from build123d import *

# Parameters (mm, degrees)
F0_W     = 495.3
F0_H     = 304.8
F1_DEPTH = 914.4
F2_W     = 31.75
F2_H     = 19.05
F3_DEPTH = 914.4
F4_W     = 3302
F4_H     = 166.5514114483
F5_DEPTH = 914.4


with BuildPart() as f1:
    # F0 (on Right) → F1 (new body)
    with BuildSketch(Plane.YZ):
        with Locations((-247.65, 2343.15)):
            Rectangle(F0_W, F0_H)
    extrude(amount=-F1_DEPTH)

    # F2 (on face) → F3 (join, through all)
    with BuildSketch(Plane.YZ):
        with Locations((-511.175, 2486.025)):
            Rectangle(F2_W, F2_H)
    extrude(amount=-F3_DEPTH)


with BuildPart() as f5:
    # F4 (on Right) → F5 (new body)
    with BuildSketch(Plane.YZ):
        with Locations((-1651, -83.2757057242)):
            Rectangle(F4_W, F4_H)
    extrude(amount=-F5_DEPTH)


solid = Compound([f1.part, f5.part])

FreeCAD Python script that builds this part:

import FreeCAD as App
import Part
import Sketcher
from FreeCAD import Vector
Q = App.Units.Quantity

doc = App.newDocument("Part")
body = doc.addObject("PartDesign::Body", "Body")

# Sketch on YZ plane
sketch1 = doc.addObject("Sketcher::SketchObject", "Sketch")
body.addObject(sketch1)
sketch1.AttachmentSupport = (doc.YZ_Plane, [""])
sketch1.MapMode = "FlatFace"
sketch1.addGeometry(Part.LineSegment(Vector(-495, 2496, 0), Vector(-495, 2191, 0)), False)
sketch1.addGeometry(Part.LineSegment(Vector(-495, 2191, 0), Vector(0, 2191, 0)), False)
sketch1.addGeometry(Part.LineSegment(Vector(0, 2191, 0), Vector(0, 2496, 0)), False)
sketch1.addGeometry(Part.LineSegment(Vector(0, 2496, 0), Vector(-495, 2496, 0)), False)
sketch1.addConstraint(Sketcher.Constraint("Coincident", 0, 2, 1, 1))
sketch1.addConstraint(Sketcher.Constraint("Coincident", 1, 2, 2, 1))
sketch1.addConstraint(Sketcher.Constraint("Coincident", 2, 2, 3, 1))
sketch1.addConstraint(Sketcher.Constraint("Coincident", 3, 2, 0, 1))
sketch1.addConstraint(Sketcher.Constraint("Vertical", 0))
sketch1.addConstraint(Sketcher.Constraint("Horizontal", 1))
sketch1.addConstraint(Sketcher.Constraint("Vertical", 2))
sketch1.addConstraint(Sketcher.Constraint("Horizontal", 3))
sketch1.addConstraint(Sketcher.Constraint("PointOnObject", 1, 2, -2))
sketch1.addConstraint(Sketcher.Constraint("DistanceY", 0, 2, 0, 1, Q("12 in")))
sketch1.addConstraint(Sketcher.Constraint("DistanceX", 1, 1, 1, 2, Q("19.5 in")))
sketch1.addConstraint(Sketcher.Constraint("DistanceY", -1, 1, 0, 2, Q("86.25 in")))
pad1 = doc.addObject("PartDesign::Pad", "Pad")
body.addObject(pad1)
pad1.Profile = sketch1
pad1.Length = Q("36 in")
pad1.Reversed = True

# Sketch on YZ plane
sketch2 = doc.addObject("Sketcher::SketchObject", "Sketch001")
body.addObject(sketch2)
sketch2.AttachmentSupport = (doc.YZ_Plane, [""])
sketch2.MapMode = "FlatFace"
sketch2.addGeometry(Part.LineSegment(Vector(-527, 2496, 0), Vector(-527, 2476, 0)), False)
sketch2.addGeometry(Part.LineSegment(Vector(-527, 2476, 0), Vector(-495, 2476, 0)), False)
sketch2.addGeometry(Part.LineSegment(Vector(-495, 2476, 0), Vector(-495, 2496, 0)), False)
sketch2.addGeometry(Part.LineSegment(Vector(-495, 2496, 0), Vector(-527, 2496, 0)), False)
sketch2.addConstraint(Sketcher.Constraint("Coincident", 0, 2, 1, 1))
sketch2.addConstraint(Sketcher.Constraint("Coincident", 1, 2, 2, 1))
sketch2.addConstraint(Sketcher.Constraint("Coincident", 2, 2, 3, 1))
sketch2.addConstraint(Sketcher.Constraint("Coincident", 3, 2, 0, 1))
sketch2.addConstraint(Sketcher.Constraint("Vertical", 0))
sketch2.addConstraint(Sketcher.Constraint("Horizontal", 1))
sketch2.addConstraint(Sketcher.Constraint("Vertical", 2))
sketch2.addConstraint(Sketcher.Constraint("Horizontal", 3))
sketch2.addConstraint(Sketcher.Constraint("DistanceX", 1, 1, 1, 2, Q("1.25 in")))
sketch2.addConstraint(Sketcher.Constraint("DistanceY", 0, 2, 0, 1, Q("0.75 in")))
sketch2.addConstraint(Sketcher.Constraint("DistanceY", -1, 1, 0, 2, Q("97.5 in")))
sketch2.addConstraint(Sketcher.Constraint("DistanceX", 1, 2, -1, 1, Q("19.5 in")))
pad2 = doc.addObject("PartDesign::Pad", "Pad001")
body.addObject(pad2)
pad2.Profile = sketch2
pad2.Length = Q("36 in")
pad2.Reversed = True
body2 = doc.addObject("PartDesign::Body", "Body001")

# Sketch on YZ plane
sketch3 = doc.addObject("Sketcher::SketchObject", "Sketch002")
body2.addObject(sketch3)
sketch3.AttachmentSupport = (doc.getObject("YZ_Plane001"), [""])
sketch3.MapMode = "FlatFace"
sketch3.addGeometry(Part.LineSegment(Vector(-3302, 0, 0), Vector(-3302, -167, 0)), False)
sketch3.addGeometry(Part.LineSegment(Vector(-3302, -167, 0), Vector(0, -167, 0)), False)
sketch3.addGeometry(Part.LineSegment(Vector(0, -167, 0), Vector(0, 0, 0)), False)
sketch3.addGeometry(Part.LineSegment(Vector(0, 0, 0), Vector(-3302, 0, 0)), False)
sketch3.addConstraint(Sketcher.Constraint("Coincident", 0, 2, 1, 1))
sketch3.addConstraint(Sketcher.Constraint("Coincident", 1, 2, 2, 1))
sketch3.addConstraint(Sketcher.Constraint("Coincident", 2, 2, 3, 1))
sketch3.addConstraint(Sketcher.Constraint("Coincident", 3, 2, 0, 1))
sketch3.addConstraint(Sketcher.Constraint("Vertical", 0))
sketch3.addConstraint(Sketcher.Constraint("Horizontal", 1))
sketch3.addConstraint(Sketcher.Constraint("Vertical", 2))
sketch3.addConstraint(Sketcher.Constraint("Horizontal", 3))
sketch3.addConstraint(Sketcher.Constraint("Coincident", 2, 2, -1, 1))
sketch3.addConstraint(Sketcher.Constraint("DistanceX", 1, 1, 1, 2, Q("130 in")))
sketch3.addConstraint(Sketcher.Constraint("DistanceY", 0, 2, 0, 1, 166.551411))
pad3 = doc.addObject("PartDesign::Pad", "Pad002")
body2.addObject(pad3)
pad3.Profile = sketch3
pad3.Length = Q("36 in")
pad3.Reversed = True

doc.recompute()
